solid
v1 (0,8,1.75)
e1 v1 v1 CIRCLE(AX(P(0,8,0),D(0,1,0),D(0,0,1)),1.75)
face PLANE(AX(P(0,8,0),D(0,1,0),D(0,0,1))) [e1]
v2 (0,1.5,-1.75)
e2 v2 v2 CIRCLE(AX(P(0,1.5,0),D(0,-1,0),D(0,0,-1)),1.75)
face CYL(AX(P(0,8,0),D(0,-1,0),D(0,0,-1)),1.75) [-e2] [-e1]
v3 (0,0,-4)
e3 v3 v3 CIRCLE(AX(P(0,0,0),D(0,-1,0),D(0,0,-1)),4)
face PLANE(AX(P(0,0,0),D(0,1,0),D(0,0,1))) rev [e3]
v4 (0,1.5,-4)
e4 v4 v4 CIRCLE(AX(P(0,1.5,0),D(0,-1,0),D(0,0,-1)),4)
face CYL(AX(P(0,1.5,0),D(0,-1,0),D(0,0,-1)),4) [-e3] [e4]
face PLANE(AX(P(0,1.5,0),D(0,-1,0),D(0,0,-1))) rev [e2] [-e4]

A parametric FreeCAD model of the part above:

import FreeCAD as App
import Part
import Sketcher
from FreeCAD import Vector

doc = App.newDocument("Part")
body = doc.addObject("PartDesign::Body", "Body")

# Sketch on XZ plane
sketch1 = doc.addObject("Sketcher::SketchObject", "Sketch")
body.addObject(sketch1)
sketch1.AttachmentSupport = (doc.XZ_Plane, [""])
sketch1.MapMode = "FlatFace"
sketch1.addGeometry(Part.Circle(Vector(0, 0, 0), Vector(0, 0, 1), 1.8), False)
sketch1.addConstraint(Sketcher.Constraint("Coincident", 0, 3, -1, 1))
sketch1.addConstraint(Sketcher.Constraint("Diameter", 0, 3.5))
pad1 = doc.addObject("PartDesign::Pad", "Pad")
body.addObject(pad1)
pad1.Profile = sketch1
pad1.Length = 8
pad1.Reversed = True

# Sketch on XZ plane
sketch2 = doc.addObject("Sketcher::SketchObject", "Sketch001")
body.addObject(sketch2)
sketch2.AttachmentSupport = (doc.XZ_Plane, [""])
sketch2.MapMode = "FlatFace"
sketch2.addGeometry(Part.Circle(Vector(0, 0, 0), Vector(0, 0, 1), 4), False)
sketch2.addConstraint(Sketcher.Constraint("Coincident", 0, 3, -1, 1))
sketch2.addConstraint(Sketcher.Constraint("Diameter", 0, 8.0))
pad2 = doc.addObject("PartDesign::Pad", "Pad001")
body.addObject(pad2)
pad2.Profile = sketch2
pad2.Length = 1.5
pad2.Reversed = True

doc.recompute()
